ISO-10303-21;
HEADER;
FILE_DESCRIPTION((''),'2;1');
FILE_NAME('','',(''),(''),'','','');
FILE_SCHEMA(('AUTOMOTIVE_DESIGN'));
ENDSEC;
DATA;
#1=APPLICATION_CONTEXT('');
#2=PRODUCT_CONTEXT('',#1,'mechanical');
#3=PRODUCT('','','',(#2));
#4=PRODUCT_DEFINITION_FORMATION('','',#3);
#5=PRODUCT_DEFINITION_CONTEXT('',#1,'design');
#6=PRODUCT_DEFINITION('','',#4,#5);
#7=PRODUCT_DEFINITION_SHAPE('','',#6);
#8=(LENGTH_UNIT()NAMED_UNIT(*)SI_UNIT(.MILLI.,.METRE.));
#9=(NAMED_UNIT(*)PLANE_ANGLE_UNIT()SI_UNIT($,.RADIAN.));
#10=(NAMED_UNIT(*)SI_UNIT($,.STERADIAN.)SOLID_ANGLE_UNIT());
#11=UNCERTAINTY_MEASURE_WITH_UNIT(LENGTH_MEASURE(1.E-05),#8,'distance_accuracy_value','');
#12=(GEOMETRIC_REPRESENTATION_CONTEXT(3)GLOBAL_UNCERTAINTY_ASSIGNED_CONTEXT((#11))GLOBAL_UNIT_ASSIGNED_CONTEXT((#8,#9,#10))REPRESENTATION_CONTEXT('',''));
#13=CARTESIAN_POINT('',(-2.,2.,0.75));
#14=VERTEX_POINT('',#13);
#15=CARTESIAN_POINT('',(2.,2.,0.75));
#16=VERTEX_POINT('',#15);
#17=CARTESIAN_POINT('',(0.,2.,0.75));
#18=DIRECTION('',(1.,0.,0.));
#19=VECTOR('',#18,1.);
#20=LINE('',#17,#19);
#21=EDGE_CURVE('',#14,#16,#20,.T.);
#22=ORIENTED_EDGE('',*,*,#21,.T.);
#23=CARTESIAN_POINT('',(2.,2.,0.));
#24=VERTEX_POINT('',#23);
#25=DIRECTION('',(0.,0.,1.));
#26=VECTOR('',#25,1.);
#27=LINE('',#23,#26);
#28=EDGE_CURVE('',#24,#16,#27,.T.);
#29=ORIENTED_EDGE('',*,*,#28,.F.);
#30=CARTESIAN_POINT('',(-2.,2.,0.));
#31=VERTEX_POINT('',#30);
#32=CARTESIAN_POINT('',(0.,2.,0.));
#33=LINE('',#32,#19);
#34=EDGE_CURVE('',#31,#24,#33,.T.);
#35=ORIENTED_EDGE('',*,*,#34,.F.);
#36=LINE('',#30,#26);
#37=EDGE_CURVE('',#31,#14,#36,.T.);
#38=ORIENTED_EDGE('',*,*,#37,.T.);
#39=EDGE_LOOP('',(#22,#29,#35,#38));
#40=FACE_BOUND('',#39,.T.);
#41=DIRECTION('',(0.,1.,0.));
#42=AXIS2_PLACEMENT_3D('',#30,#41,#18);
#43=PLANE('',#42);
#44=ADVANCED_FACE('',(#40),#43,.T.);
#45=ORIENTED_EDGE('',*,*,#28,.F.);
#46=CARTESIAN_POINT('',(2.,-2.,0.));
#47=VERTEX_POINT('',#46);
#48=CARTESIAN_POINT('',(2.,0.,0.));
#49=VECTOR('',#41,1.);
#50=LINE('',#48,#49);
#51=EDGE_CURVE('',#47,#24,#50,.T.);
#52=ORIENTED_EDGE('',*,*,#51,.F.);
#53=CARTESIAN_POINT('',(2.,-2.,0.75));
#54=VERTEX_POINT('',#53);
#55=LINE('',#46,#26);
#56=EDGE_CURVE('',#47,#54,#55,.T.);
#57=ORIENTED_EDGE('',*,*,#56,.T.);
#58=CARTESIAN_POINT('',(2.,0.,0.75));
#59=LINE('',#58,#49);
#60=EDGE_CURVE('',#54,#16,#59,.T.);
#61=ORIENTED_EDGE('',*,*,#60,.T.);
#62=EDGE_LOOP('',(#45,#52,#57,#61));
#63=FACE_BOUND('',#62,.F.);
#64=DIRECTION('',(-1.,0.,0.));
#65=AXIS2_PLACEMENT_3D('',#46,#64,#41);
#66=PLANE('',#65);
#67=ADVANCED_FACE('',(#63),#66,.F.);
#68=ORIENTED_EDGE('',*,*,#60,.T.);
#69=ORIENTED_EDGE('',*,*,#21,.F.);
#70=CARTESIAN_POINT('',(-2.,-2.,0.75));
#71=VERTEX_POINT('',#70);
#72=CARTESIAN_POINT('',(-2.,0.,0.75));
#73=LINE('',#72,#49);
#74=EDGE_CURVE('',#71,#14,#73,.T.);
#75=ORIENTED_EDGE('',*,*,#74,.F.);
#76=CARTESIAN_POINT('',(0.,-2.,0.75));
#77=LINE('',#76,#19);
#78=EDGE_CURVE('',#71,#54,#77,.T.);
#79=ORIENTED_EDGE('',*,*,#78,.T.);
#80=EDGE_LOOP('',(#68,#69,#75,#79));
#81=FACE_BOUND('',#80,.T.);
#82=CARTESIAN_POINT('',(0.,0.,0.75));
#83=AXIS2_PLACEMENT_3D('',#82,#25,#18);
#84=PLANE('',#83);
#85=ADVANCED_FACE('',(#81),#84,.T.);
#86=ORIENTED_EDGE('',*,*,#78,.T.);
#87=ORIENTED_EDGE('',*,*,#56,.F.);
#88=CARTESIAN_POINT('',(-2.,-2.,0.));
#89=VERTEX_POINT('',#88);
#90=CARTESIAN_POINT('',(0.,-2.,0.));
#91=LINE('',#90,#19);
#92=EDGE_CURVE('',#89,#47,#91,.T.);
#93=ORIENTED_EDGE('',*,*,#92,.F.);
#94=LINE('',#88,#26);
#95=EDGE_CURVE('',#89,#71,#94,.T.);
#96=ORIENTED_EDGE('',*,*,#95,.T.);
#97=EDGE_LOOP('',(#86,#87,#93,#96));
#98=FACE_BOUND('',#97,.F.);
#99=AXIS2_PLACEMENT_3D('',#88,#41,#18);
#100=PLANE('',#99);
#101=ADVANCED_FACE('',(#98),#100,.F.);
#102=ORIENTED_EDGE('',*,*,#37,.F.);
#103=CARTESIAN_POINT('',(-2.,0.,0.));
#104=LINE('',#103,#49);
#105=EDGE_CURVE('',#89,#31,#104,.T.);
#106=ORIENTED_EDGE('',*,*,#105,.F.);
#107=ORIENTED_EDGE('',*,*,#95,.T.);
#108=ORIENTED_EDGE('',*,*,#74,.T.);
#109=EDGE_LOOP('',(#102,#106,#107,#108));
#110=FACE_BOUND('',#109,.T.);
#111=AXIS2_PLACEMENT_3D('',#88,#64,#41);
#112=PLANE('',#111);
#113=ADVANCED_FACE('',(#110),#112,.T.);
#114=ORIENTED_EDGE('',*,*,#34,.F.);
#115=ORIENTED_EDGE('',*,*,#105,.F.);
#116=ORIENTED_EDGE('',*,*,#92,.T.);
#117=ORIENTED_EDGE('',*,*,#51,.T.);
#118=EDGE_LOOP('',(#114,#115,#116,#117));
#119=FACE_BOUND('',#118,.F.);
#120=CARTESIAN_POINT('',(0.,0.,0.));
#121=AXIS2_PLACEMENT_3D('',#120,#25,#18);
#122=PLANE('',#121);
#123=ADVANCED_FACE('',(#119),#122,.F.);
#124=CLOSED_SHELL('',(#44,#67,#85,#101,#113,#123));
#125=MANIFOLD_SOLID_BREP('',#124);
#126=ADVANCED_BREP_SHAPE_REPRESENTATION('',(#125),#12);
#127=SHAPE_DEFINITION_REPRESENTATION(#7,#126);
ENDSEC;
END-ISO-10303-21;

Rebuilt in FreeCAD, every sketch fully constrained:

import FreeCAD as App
import Part
import Sketcher

V = App.Vector
Q = App.Units.Quantity

doc = App.newDocument("Part")
body = doc.addObject("PartDesign::Body", "Body")

# Sketch on XY plane
sketch1 = doc.addObject("Sketcher::SketchObject", "Sketch")
body.addObject(sketch1)
sketch1.AttachmentSupport = (doc.XY_Plane, [""])
sketch1.MapMode = "FlatFace"
sketch1.addGeometry([
    Part.LineSegment(V(-2, 2, 0), V(-2, -2, 0)),
    Part.LineSegment(V(-2, -2, 0), V(2, -2, 0)),
    Part.LineSegment(V(2, -2, 0), V(2, 2, 0)),
    Part.LineSegment(V(2, 2, 0), V(-2, 2, 0)),
], False)
sketch1.addConstraint([
    Sketcher.Constraint("Coincident", 0, 2, 1, 1),
    Sketcher.Constraint("Coincident", 1, 2, 2, 1),
    Sketcher.Constraint("Coincident", 2, 2, 3, 1),
    Sketcher.Constraint("Coincident", 3, 2, 0, 1),
    Sketcher.Constraint("Vertical", 0),
    Sketcher.Constraint("Horizontal", 1),
    Sketcher.Constraint("Vertical", 2),
    Sketcher.Constraint("Horizontal", 3),
    Sketcher.Constraint("Symmetric", 0, 2, 2, 2, -1, 1),
    Sketcher.Constraint("Equal", 3, 0),
    Sketcher.Constraint("DistanceX", 1, 1, 1, 2, Q("4 mm")),
])
pad1 = doc.addObject("PartDesign::Pad", "Pad")
body.addObject(pad1)
pad1.Profile = sketch1
pad1.Length = 0.75

doc.recompute()
